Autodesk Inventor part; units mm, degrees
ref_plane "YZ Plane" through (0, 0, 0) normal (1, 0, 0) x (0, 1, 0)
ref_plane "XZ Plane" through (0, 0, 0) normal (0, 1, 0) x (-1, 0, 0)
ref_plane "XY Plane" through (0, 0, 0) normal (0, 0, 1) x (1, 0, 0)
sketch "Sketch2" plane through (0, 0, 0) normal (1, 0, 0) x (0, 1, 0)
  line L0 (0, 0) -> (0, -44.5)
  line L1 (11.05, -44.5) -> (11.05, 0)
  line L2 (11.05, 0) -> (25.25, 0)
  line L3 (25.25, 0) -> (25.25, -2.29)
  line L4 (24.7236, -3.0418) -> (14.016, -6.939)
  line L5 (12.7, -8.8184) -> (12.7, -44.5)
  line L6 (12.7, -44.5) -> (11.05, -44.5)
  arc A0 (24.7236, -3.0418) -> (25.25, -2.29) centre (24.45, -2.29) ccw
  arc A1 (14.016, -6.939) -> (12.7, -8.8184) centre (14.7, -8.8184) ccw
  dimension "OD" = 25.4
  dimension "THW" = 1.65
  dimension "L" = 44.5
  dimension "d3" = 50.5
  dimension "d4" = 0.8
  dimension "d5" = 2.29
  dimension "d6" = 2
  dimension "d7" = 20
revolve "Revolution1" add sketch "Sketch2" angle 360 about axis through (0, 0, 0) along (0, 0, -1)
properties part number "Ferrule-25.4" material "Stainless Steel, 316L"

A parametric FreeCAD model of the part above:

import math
import FreeCAD as App
import Part
import Sketcher
Q = App.Units.Quantity

doc = App.newDocument("Part")
params = doc.addObject("Spreadsheet::Sheet", "Params")
for row, (alias, value) in enumerate([
    ("sketch1_radius", "2 mm"),
    ("sketch1_radius2", "0.8 mm"),
    ("sketch1_height", "44.5 mm"),
    ("sketch1_width", "1.65 mm"),
    ("sketch1_height2", "2.29 mm"),
    ("revolution_angle", "360 deg"),
], start=1):
    params.set(f"A{row}", alias)
    params.set(f"B{row}", "=" + value)
    params.setAlias(f"B{row}", alias)

body = doc.addObject("PartDesign::Body", "Body")

# Sketch on YZ plane
sketch1 = body.newObject("Sketcher::SketchObject", "Sketch")
sketch1.AttachmentSupport = (doc.getObject("YZ_Plane"), [""])
sketch1.MapMode = "FlatFace"
sketch1.addGeometry(Part.LineSegment(App.Vector(11.1, 0, 0), App.Vector(11.1, -44.5, 0)), False)
sketch1.addGeometry(Part.LineSegment(App.Vector(11.1, -44.5, 0), App.Vector(12.7, -44.5, 0)), False)
sketch1.addGeometry(Part.LineSegment(App.Vector(12.7, -44.5, 0), App.Vector(12.7, -8.8, 0)), False)
sketch1.addGeometry(Part.ArcOfCircle(Part.Circle(App.Vector(14.7, -8.8, 0), App.Vector(0, 0, 1), 2), math.radians(110), math.radians(180)), False)
sketch1.addGeometry(Part.LineSegment(App.Vector(14, -6.9, 0), App.Vector(24.7, -3, 0)), False)
sketch1.addGeometry(Part.ArcOfCircle(Part.Circle(App.Vector(24.4, -2.3, 0), App.Vector(0, 0, 1), 0.8), math.radians(-70), math.radians(0)), False)
sketch1.addGeometry(Part.LineSegment(App.Vector(25.2, -2.3, 0), App.Vector(25.2, 0, 0)), False)
sketch1.addGeometry(Part.LineSegment(App.Vector(25.2, 0, 0), App.Vector(11.1, 0, 0)), False)
sketch1.addConstraint(Sketcher.Constraint("Coincident", 0, 2, 1, 1))
sketch1.addConstraint(Sketcher.Constraint("Coincident", 1, 2, 2, 1))
sketch1.addConstraint(Sketcher.Constraint("Tangent", 2, 2, 3, 2))
sketch1.addConstraint(Sketcher.Constraint("Tangent", 3, 1, 4, 1))
sketch1.addConstraint(Sketcher.Constraint("Tangent", 4, 2, 5, 1))
sketch1.addConstraint(Sketcher.Constraint("Tangent", 5, 2, 6, 1))
sketch1.addConstraint(Sketcher.Constraint("Coincident", 6, 2, 7, 1))
sketch1.addConstraint(Sketcher.Constraint("Coincident", 7, 2, 0, 1))
sketch1.addConstraint(Sketcher.Constraint("Vertical", 0))
sketch1.addConstraint(Sketcher.Constraint("Horizontal", 1))
sketch1.addConstraint(Sketcher.Constraint("Vertical", 2))
sketch1.addConstraint(Sketcher.Constraint("Vertical", 6))
sketch1.addConstraint(Sketcher.Constraint("Horizontal", 7))
sketch1.addConstraint(Sketcher.Constraint("PointOnObject", 6, 2, -1))
sketch1.addConstraint(Sketcher.Constraint("Radius", 3, Q("2 mm")))
sketch1.addConstraint(Sketcher.Constraint("Radius", 5, Q("0.8 mm")))
sketch1.addConstraint(Sketcher.Constraint("Angle", 4, Q("19.9998 deg")))
sketch1.addConstraint(Sketcher.Constraint("DistanceY", 0, 2, 0, 1, Q("44.5 mm")))
sketch1.addConstraint(Sketcher.Constraint("DistanceX", 1, 1, 1, 2, Q("1.65 mm")))
sketch1.addConstraint(Sketcher.Constraint("DistanceY", 6, 1, 6, 2, Q("2.29 mm")))
sketch1.addConstraint(Sketcher.Constraint("DistanceX", 7, 2, 7, 1, Q("14.2 mm")))
sketch1.addConstraint(Sketcher.Constraint("DistanceX", -1, 1, 3, 3, Q("14.7 mm")))
sketch1.setExpression("Constraints[14]", "Params.sketch1_radius")
sketch1.setExpression("Constraints[15]", "Params.sketch1_radius2")
sketch1.setExpression("Constraints[17]", "Params.sketch1_height")
sketch1.setExpression("Constraints[18]", "Params.sketch1_width")
sketch1.setExpression("Constraints[19]", "Params.sketch1_height2")
revolution = body.newObject("PartDesign::Revolution", "Revolution")
revolution.Profile = sketch1
revolution.ReferenceAxis = (sketch1, ["V_Axis"])
revolution.setExpression("Angle", "Params.revolution_angle")

doc.recompute()
